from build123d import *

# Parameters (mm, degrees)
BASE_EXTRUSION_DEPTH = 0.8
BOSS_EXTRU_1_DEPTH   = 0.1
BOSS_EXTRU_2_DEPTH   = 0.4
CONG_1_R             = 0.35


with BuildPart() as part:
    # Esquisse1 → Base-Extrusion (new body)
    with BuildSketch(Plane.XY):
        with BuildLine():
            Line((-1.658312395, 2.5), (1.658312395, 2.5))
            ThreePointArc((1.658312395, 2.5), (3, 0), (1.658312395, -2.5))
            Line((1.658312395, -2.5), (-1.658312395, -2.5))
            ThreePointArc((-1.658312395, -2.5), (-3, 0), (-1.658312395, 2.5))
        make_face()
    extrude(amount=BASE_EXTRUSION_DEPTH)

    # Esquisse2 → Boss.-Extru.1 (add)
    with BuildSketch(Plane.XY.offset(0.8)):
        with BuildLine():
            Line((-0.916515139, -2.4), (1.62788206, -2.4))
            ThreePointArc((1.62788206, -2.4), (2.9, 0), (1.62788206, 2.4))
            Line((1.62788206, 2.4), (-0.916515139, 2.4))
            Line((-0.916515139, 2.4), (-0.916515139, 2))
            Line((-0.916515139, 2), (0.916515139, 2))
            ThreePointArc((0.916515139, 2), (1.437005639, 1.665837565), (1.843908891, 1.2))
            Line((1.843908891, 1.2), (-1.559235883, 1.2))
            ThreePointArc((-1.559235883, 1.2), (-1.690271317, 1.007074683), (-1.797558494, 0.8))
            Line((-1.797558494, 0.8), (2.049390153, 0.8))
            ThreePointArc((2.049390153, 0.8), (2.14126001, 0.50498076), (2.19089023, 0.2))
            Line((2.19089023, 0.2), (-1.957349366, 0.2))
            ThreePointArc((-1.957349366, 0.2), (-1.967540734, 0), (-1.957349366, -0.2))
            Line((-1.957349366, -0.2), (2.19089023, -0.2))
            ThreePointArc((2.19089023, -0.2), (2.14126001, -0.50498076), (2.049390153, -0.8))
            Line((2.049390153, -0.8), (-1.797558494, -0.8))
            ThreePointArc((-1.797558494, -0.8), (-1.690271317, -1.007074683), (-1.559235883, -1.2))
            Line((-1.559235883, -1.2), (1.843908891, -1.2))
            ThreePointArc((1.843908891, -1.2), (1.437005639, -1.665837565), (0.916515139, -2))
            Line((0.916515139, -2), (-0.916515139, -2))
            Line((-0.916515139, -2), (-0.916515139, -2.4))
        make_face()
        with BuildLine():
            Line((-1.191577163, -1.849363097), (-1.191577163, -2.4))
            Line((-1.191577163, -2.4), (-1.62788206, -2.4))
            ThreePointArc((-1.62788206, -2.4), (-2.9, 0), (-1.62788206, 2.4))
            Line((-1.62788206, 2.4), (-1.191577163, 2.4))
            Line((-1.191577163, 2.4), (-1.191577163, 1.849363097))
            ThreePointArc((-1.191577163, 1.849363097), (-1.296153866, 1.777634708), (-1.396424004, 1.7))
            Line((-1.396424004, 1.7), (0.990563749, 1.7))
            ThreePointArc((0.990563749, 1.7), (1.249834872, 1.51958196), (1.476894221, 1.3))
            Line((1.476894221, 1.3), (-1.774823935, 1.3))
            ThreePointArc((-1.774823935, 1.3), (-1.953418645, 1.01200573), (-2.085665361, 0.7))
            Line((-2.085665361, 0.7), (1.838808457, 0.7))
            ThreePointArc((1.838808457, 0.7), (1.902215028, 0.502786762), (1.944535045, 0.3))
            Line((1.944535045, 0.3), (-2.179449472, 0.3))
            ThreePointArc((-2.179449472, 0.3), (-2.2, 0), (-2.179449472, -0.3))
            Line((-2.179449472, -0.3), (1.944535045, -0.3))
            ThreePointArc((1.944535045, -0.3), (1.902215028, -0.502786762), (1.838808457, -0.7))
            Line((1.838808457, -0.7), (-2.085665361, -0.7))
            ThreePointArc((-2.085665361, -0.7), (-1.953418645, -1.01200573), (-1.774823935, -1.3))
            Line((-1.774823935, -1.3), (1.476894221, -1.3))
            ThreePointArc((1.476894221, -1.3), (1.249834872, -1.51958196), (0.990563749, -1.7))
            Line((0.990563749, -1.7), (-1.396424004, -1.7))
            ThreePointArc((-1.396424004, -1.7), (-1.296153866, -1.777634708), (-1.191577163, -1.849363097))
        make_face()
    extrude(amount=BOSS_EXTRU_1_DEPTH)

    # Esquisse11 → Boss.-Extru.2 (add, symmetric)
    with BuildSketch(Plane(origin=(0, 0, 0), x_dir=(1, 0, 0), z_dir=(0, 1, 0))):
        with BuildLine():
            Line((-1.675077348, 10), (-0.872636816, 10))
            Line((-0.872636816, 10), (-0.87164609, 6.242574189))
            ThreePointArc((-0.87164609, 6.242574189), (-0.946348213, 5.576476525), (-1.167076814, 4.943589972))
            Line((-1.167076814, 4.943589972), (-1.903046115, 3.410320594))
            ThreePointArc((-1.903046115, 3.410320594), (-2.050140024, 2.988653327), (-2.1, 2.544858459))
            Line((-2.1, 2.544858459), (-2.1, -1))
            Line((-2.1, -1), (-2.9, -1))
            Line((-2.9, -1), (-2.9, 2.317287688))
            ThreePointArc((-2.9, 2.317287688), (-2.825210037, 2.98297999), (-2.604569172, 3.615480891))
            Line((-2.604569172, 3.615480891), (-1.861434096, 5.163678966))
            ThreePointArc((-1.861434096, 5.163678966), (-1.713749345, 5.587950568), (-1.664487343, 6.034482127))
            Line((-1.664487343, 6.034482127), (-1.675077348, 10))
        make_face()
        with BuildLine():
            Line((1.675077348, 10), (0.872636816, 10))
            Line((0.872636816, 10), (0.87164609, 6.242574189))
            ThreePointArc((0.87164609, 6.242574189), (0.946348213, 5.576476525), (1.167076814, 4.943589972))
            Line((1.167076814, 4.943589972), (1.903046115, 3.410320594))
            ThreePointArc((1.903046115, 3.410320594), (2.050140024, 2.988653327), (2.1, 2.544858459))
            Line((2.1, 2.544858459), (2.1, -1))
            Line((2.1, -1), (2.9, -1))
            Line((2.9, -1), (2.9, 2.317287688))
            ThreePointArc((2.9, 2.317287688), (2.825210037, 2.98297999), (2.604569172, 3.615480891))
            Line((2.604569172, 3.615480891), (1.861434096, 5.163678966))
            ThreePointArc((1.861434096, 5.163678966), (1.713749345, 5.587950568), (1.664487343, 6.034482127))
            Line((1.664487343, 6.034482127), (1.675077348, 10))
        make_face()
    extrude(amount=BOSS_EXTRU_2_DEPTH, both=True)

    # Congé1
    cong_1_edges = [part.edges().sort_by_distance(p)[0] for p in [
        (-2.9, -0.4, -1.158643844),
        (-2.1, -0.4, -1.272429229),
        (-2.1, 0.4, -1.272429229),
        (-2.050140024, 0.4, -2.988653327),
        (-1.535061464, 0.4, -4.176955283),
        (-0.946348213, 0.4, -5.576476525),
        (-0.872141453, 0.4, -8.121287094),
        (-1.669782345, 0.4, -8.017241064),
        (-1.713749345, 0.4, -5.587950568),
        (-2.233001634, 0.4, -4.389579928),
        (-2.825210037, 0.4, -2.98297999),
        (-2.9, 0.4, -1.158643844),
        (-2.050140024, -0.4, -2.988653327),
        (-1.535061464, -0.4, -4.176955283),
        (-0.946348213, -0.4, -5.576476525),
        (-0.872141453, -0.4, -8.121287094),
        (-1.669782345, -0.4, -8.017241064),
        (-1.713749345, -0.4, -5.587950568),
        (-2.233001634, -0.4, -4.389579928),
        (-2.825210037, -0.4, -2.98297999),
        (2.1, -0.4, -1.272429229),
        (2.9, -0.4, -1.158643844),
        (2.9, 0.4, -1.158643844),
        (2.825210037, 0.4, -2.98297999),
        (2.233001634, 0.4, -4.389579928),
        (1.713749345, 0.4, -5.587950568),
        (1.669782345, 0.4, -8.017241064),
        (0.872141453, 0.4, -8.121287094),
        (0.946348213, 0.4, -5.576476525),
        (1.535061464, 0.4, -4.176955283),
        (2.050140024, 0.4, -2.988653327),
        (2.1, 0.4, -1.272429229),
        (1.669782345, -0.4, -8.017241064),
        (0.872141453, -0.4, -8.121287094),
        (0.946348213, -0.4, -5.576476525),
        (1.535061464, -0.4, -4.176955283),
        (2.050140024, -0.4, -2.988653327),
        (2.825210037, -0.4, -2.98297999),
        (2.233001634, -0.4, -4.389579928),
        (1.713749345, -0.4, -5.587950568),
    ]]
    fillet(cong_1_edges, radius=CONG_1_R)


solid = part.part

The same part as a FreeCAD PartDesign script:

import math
import FreeCAD as App
import Part
import Sketcher
from FreeCAD import Vector


def edges_at(feature, points):
    """Names of the edges that pass closest to the given points."""
    edges = feature.Shape.Edges
    near = lambda p: min(range(len(edges)), key=lambda i: edges[i].distToShape(Part.Vertex(*p))[0])
    return sorted({f"Edge{near(p) + 1}" for p in points})

doc = App.newDocument("Part")
body = doc.addObject("PartDesign::Body", "Body")

# Sketch on XY plane
sketch1 = body.newObject("Sketcher::SketchObject", "Sketch")
sketch1.AttachmentSupport = (doc.getObject("XY_Plane"), [""])
sketch1.MapMode = "FlatFace"
sketch1.addGeometry([
    Part.LineSegment(Vector(1.7, 2.5, 0), Vector(-1.7, 2.5, 0)),
    Part.ArcOfCircle(Part.Circle(Vector(0, 0, 0), Vector(0, 0, 1), 3), math.radians(124), math.radians(236)),
    Part.LineSegment(Vector(-1.7, -2.5, 0), Vector(1.7, -2.5, 0)),
    Part.ArcOfCircle(Part.Circle(Vector(0, 0, 0), Vector(0, 0, 1), 3), math.radians(-56), math.radians(56)),
], False)
sketch1.addConstraint([
    Sketcher.Constraint("Coincident", 0, 2, 1, 1),
    Sketcher.Constraint("Coincident", 1, 2, 2, 1),
    Sketcher.Constraint("Coincident", 2, 2, 3, 1),
    Sketcher.Constraint("Coincident", 3, 2, 0, 1),
    Sketcher.Constraint("Horizontal", 0),
    Sketcher.Constraint("Horizontal", 2),
    Sketcher.Constraint("Coincident", 1, 3, -1, 1),
    Sketcher.Constraint("Coincident", 3, 3, -1, 1),
    Sketcher.Constraint("Equal", 1, 3),
    Sketcher.Constraint("Vertical", 0, 2, 1, 2),
    Sketcher.Constraint("Radius", 1, 3.0),
    Sketcher.Constraint("DistanceY", 1, 2, 0, 2, 5.0),
])
pad1 = body.newObject("PartDesign::Pad", "Pad")
pad1.Profile = sketch1
pad1.Length = 0.8

# Sketch on XY plane
sketch2 = body.newObject("Sketcher::SketchObject", "Sketch001")
sketch2.AttachmentSupport = (doc.getObject("XY_Plane"), [""])
sketch2.MapMode = "FlatFace"
sketch2.AttachmentOffset = App.Placement(Vector(0, 0, 0.8), App.Rotation())
sketch2.addGeometry([
    Part.LineSegment(Vector(-0.92, -2.4, 0), Vector(1.63, -2.4, 0)),  # 0
    Part.ArcOfCircle(Part.Circle(Vector(0, 0, 0), Vector(0, 0, 1), 2.9), math.radians(-56), math.radians(56)),  # 1
    Part.LineSegment(Vector(1.63, 2.4, 0), Vector(-0.92, 2.4, 0)),  # 2
    Part.LineSegment(Vector(-0.92, 2.4, 0), Vector(-0.92, 2, 0)),  # 3
    Part.LineSegment(Vector(-0.92, 2, 0), Vector(0.92, 2, 0)),  # 4
    Part.ArcOfCircle(Part.Circle(Vector(0, 0, 0), Vector(0, 0, 1), 2.2), math.radians(33), math.radians(65)),  # 5
    Part.LineSegment(Vector(1.84, 1.2, 0), Vector(-1.56, 1.2, 0)),  # 6
    Part.ArcOfCircle(Part.Circle(Vector(0, 0, 0), Vector(0, 0, 1), 1.97), math.radians(142.42), math.radians(156.01)),  # 7
    Part.LineSegment(Vector(-1.8, 0.8, 0), Vector(2.05, 0.8, 0)),  # 8
    Part.ArcOfCircle(Part.Circle(Vector(0, 0, 0), Vector(0, 0, 1), 2.2), math.radians(5.22), math.radians(21.32)),  # 9
    Part.LineSegment(Vector(2.19, 0.2, 0), Vector(-1.96, 0.2, 0)),  # 10
    Part.ArcOfCircle(Part.Circle(Vector(0, 0, 0), Vector(0, 0, 1), 1.97), math.radians(174.17), math.radians(185.83)),  # 11
    Part.LineSegment(Vector(-1.96, -0.2, 0), Vector(2.19, -0.2, 0)),  # 12
    Part.ArcOfCircle(Part.Circle(Vector(0, 0, 0), Vector(0, 0, 1), 2.2), math.radians(-21.32), math.radians(-5.22)),  # 13
    Part.LineSegment(Vector(2.05, -0.8, 0), Vector(-1.8, -0.8, 0)),  # 14
    Part.ArcOfCircle(Part.Circle(Vector(0, 0, 0), Vector(0, 0, 1), 1.97), math.radians(-156.01), math.radians(-142.42)),  # 15
    Part.LineSegment(Vector(-1.56, -1.2, 0), Vector(1.84, -1.2, 0)),  # 16
    Part.ArcOfCircle(Part.Circle(Vector(0, 0, 0), Vector(0, 0, 1), 2.2), math.radians(-65), math.radians(-33)),  # 17
    Part.LineSegment(Vector(0.92, -2, 0), Vector(-0.92, -2, 0)),  # 18
    Part.LineSegment(Vector(-0.92, -2, 0), Vector(-0.92, -2.4, 0)),  # 19
    Part.LineSegment(Vector(-1.19, -2.4, 0), Vector(-1.19, -1.85, 0)),  # 20
    Part.ArcOfCircle(Part.Circle(Vector(0, 0, 0), Vector(0, 0, 1), 2.2), math.radians(-129.4), math.radians(-122.79)),  # 21
    Part.LineSegment(Vector(-1.4, -1.7, 0), Vector(0.99, -1.7, 0)),  # 22
    Part.ArcOfCircle(Part.Circle(Vector(0, 0, 0), Vector(0, 0, 1), 1.97), math.radians(-59.77), math.radians(-41.36)),  # 23
    Part.LineSegment(Vector(1.48, -1.3, 0), Vector(-1.77, -1.3, 0)),  # 24
    Part.ArcOfCircle(Part.Circle(Vector(0, 0, 0), Vector(0, 0, 1), 2.2), math.radians(-161.45), math.radians(-143.78)),  # 25
    Part.LineSegment(Vector(-2.09, -0.7, 0), Vector(1.84, -0.7, 0)),  # 26
    Part.ArcOfCircle(Part.Circle(Vector(0, 0, 0), Vector(0, 0, 1), 1.97), math.radians(-20.84), math.radians(-8.77)),  # 27
    Part.LineSegment(Vector(1.94, -0.3, 0), Vector(-2.18, -0.3, 0)),  # 28
    Part.ArcOfCircle(Part.Circle(Vector(0, 0, 0), Vector(0, 0, 1), 2.2), math.radians(172.16), math.radians(187.84)),  # 29
    Part.LineSegment(Vector(-2.18, 0.3, 0), Vector(1.94, 0.3, 0)),  # 30
    Part.ArcOfCircle(Part.Circle(Vector(0, 0, 0), Vector(0, 0, 1), 1.97), math.radians(8.77), math.radians(20.84)),  # 31
    Part.LineSegment(Vector(1.84, 0.7, 0), Vector(-2.09, 0.7, 0)),  # 32
    Part.ArcOfCircle(Part.Circle(Vector(0, 0, 0), Vector(0, 0, 1), 2.2), math.radians(143.78), math.radians(161.45)),  # 33
    Part.LineSegment(Vector(-1.77, 1.3, 0), Vector(1.48, 1.3, 0)),  # 34
    Part.ArcOfCircle(Part.Circle(Vector(0, 0, 0), Vector(0, 0, 1), 1.97), math.radians(41.36), math.radians(59.77)),  # 35
    Part.LineSegment(Vector(0.99, 1.7, 0), Vector(-1.4, 1.7, 0)),  # 36
    Part.ArcOfCircle(Part.Circle(Vector(0, 0, 0), Vector(0, 0, 1), 2.2), math.radians(122.79), math.radians(129.4)),  # 37
    Part.LineSegment(Vector(-1.19, 1.85, 0), Vector(-1.19, 2.4, 0)),  # 38
    Part.LineSegment(Vector(-1.19, 2.4, 0), Vector(-1.63, 2.4, 0)),  # 39
    Part.ArcOfCircle(Part.Circle(Vector(0, 0, 0), Vector(0, 0, 1), 2.9), math.radians(124), math.radians(236)),  # 40
    Part.LineSegment(Vector(-1.63, -2.4, 0), Vector(-1.19, -2.4, 0)),  # 41
], False)
sketch2.addConstraint([
    Sketcher.Constraint("Coincident", 0, 2, 1, 1),
    Sketcher.Constraint("Coincident", 1, 2, 2, 1),
    Sketcher.Constraint("Coincident", 2, 2, 3, 1),
    Sketcher.Constraint("Coincident", 3, 2, 4, 1),
    Sketcher.Constraint("Coincident", 4, 2, 5, 2),
    Sketcher.Constraint("Coincident", 5, 1, 6, 1),
    Sketcher.Constraint("Coincident", 6, 2, 7, 1),
    Sketcher.Constraint("Coincident", 7, 2, 8, 1),
    Sketcher.Constraint("Coincident", 8, 2, 9, 2),
    Sketcher.Constraint("Coincident", 9, 1, 10, 1),
    Sketcher.Constraint("Coincident", 10, 2, 11, 1),
    Sketcher.Constraint("Coincident", 11, 2, 12, 1),
    Sketcher.Constraint("Coincident", 12, 2, 13, 2),
    Sketcher.Constraint("Coincident", 13, 1, 14, 1),
    Sketcher.Constraint("Coincident", 14, 2, 15, 1),
    Sketcher.Constraint("Coincident", 15, 2, 16, 1),
    Sketcher.Constraint("Coincident", 16, 2, 17, 2),
    Sketcher.Constraint("Coincident", 17, 1, 18, 1),
    Sketcher.Constraint("Coincident", 18, 2, 19, 1),
    Sketcher.Constraint("Coincident", 19, 2, 0, 1),
    Sketcher.Constraint("Coincident", 20, 2, 21, 2),
    Sketcher.Constraint("Coincident", 21, 1, 22, 1),
    Sketcher.Constraint("Coincident", 22, 2, 23, 1),
    Sketcher.Constraint("Coincident", 23, 2, 24, 1),
    Sketcher.Constraint("Coincident", 24, 2, 25, 2),
    Sketcher.Constraint("Coincident", 25, 1, 26, 1),
    Sketcher.Constraint("Coincident", 26, 2, 27, 1),
    Sketcher.Constraint("Coincident", 27, 2, 28, 1),
    Sketcher.Constraint("Coincident", 28, 2, 29, 2),
    Sketcher.Constraint("Coincident", 29, 1, 30, 1),
    Sketcher.Constraint("Coincident", 30, 2, 31, 1),
    Sketcher.Constraint("Coincident", 31, 2, 32, 1),
    Sketcher.Constraint("Coincident", 32, 2, 33, 2),
    Sketcher.Constraint("Coincident", 33, 1, 34, 1),
    Sketcher.Constraint("Coincident", 34, 2, 35, 1),
    Sketcher.Constraint("Coincident", 35, 2, 36, 1),
    Sketcher.Constraint("Coincident", 36, 2, 37, 2),
    Sketcher.Constraint("Coincident", 37, 1, 38, 1),
    Sketcher.Constraint("Coincident", 38, 2, 39, 1),
    Sketcher.Constraint("Coincident", 39, 2, 40, 1),
    Sketcher.Constraint("Coincident", 40, 2, 41, 1),
    Sketcher.Constraint("Coincident", 41, 2, 20, 1),
    Sketcher.Constraint("Horizontal", 0),
    Sketcher.Constraint("Horizontal", 2),
    Sketcher.Constraint("Vertical", 3),
    Sketcher.Constraint("Horizontal", 4),
    Sketcher.Constraint("Horizontal", 6),
    Sketcher.Constraint("Horizontal", 8),
    Sketcher.Constraint("Horizontal", 10),
    Sketcher.Constraint("Horizontal", 12),
    Sketcher.Constraint("Horizontal", 14),
    Sketcher.Constraint("Horizontal", 16),
    Sketcher.Constraint("Horizontal", 18),
    Sketcher.Constraint("Vertical", 19),
    Sketcher.Constraint("Vertical", 20),
    Sketcher.Constraint("Horizontal", 22),
    Sketcher.Constraint("Horizontal", 24),
    Sketcher.Constraint("Horizontal", 26),
    Sketcher.Constraint("Horizontal", 28),
    Sketcher.Constraint("Horizontal", 30),
    Sketcher.Constraint("Horizontal", 32),
    Sketcher.Constraint("Horizontal", 34),
    Sketcher.Constraint("Horizontal", 36),
    Sketcher.Constraint("Vertical", 38),
    Sketcher.Constraint("Horizontal", 39),
    Sketcher.Constraint("Horizontal", 41),
    Sketcher.Constraint("Coincident", 1, 3, -1, 1),
    Sketcher.Constraint("Coincident", 5, 3, -1, 1),
    Sketcher.Constraint("Coincident", 7, 3, -1, 1),
    Sketcher.Constraint("Coincident", 9, 3, -1, 1),
    Sketcher.Constraint("Coincident", 11, 3, -1, 1),
    Sketcher.Constraint("Coincident", 13, 3, -1, 1),
    Sketcher.Constraint("Coincident", 15, 3, -1, 1),
    Sketcher.Constraint("Coincident", 17, 3, -1, 1),
    Sketcher.Constraint("Coincident", 21, 3, -1, 1),
    Sketcher.Constraint("Coincident", 23, 3, -1, 1),
    Sketcher.Constraint("Coincident", 25, 3, -1, 1),
    Sketcher.Constraint("Coincident", 27, 3, -1, 1),
    Sketcher.Constraint("Coincident", 29, 3, -1, 1),
    Sketcher.Constraint("Coincident", 31, 3, -1, 1),
    Sketcher.Constraint("Coincident", 33, 3, -1, 1),
    Sketcher.Constraint("Coincident", 35, 3, -1, 1),
    Sketcher.Constraint("Coincident", 37, 3, -1, 1),
    Sketcher.Constraint("Coincident", 40, 3, -1, 1),
    Sketcher.Constraint("Equal", 5, 9),
    Sketcher.Constraint("Equal", 7, 11),
    Sketcher.Constraint("Equal", 9, 13),
    Sketcher.Constraint("Equal", 11, 15),
    Sketcher.Constraint("Equal", 13, 17),
    Sketcher.Constraint("Equal", 17, 21),
    Sketcher.Constraint("Equal", 15, 23),
    Sketcher.Constraint("Equal", 21, 25),
    Sketcher.Constraint("Equal", 23, 27),
    Sketcher.Constraint("Equal", 25, 29),
    Sketcher.Constraint("Equal", 27, 31),
    Sketcher.Constraint("Equal", 29, 33),
    Sketcher.Constraint("Equal", 31, 35),
    Sketcher.Constraint("Equal", 33, 37),
    Sketcher.Constraint("Equal", 1, 40),
    Sketcher.Constraint("Symmetric", 3, 2, 17, 1, -1, 1),
    Sketcher.Constraint("Symmetric", 2, 2, 19, 2, -1),
    Sketcher.Constraint("Symmetric", 38, 2, 41, 2, -1),
    Sketcher.Constraint("Horizontal", 2, 2, 38, 2),
    Sketcher.Constraint("Vertical", 10, 2, 11, 2),
    Sketcher.Constraint("Vertical", 8, 2, 13, 1),
    Sketcher.Constraint("Vertical", 6, 2, 15, 2),
    Sketcher.Constraint("Vertical", 28, 2, 29, 1),
    Sketcher.Constraint("Vertical", 26, 2, 31, 2),
    Sketcher.Constraint("Vertical", 24, 2, 33, 1),
    Sketcher.Constraint("Vertical", 22, 2, 35, 2),
    Sketcher.Constraint("Radius", 1, 2.9),
    Sketcher.Constraint("Radius", 5, 2.2),
    Sketcher.Constraint("DistanceY", 3, 2, 3, 1, 0.4),
    Sketcher.Constraint("DistanceY", -1, 1, 3, 2, 2.0),
    Sketcher.Constraint("DistanceY", 9, 1, 5, 1, 1.0),
    Sketcher.Constraint("DistanceY", 11, 2, 7, 2, 1.0),
    Sketcher.Constraint("DistanceY", 24, 2, 28, 2, 1.0),
    Sketcher.Constraint("DistanceY", 25, 1, 29, 1, 1.0),
    Sketcher.Constraint("DistanceY", 31, 2, 35, 2, 1.0),
    Sketcher.Constraint("DistanceY", -1, 1, 5, 1, 1.2),
    Sketcher.Constraint("DistanceY", 21, 1, -1, 1, 1.7),
    Sketcher.Constraint("Radius", 7, 1.967541),
    Sketcher.Constraint("DistanceX", 39, 2, 39, 1, 0.436305),
])
pad2 = body.newObject("PartDesign::Pad", "Pad001")
pad2.Profile = sketch2
pad2.Length = 0.1

# Sketch on XZ plane
sketch3 = body.newObject("Sketcher::SketchObject", "Sketch002")
sketch3.AttachmentSupport = (doc.getObject("XZ_Plane"), [""])
sketch3.MapMode = "FlatFace"
sketch3.addGeometry([
    Part.LineSegment(Vector(-0.9, -10, 0), Vector(-1.7, -10, 0)),  # 0
    Part.LineSegment(Vector(-1.7, -10, 0), Vector(-1.7, -6, 0)),  # 1
    Part.ArcOfCircle(Part.Circle(Vector(-3.7, -6, 0), Vector(0, 0, 1), 2), math.radians(0), math.radians(26)),  # 2
    Part.LineSegment(Vector(-1.9, -5.2, 0), Vector(-2.6, -3.6, 0)),  # 3
    Part.ArcOfCircle(Part.Circle(Vector(0.1, -2.3, 0), Vector(0, 0, 1), 3), math.radians(180), math.radians(206)),  # 4
    Part.LineSegment(Vector(-2.9, -2.3, 0), Vector(-2.9, 1, 0)),  # 5
    Part.LineSegment(Vector(-2.9, 1, 0), Vector(-2.1, 1, 0)),  # 6
    Part.LineSegment(Vector(-2.1, 1, 0), Vector(-2.1, -2.5, 0)),  # 7
    Part.ArcOfCircle(Part.Circle(Vector(-0.1, -2.5, 0), Vector(0, 0, 1), 2), math.radians(-180), math.radians(-154)),  # 8
    Part.LineSegment(Vector(-1.9, -3.4, 0), Vector(-1.2, -4.9, 0)),  # 9
    Part.ArcOfCircle(Part.Circle(Vector(-3.9, -6.2, 0), Vector(0, 0, 1), 3), math.radians(0), math.radians(26)),  # 10
    Part.LineSegment(Vector(-0.9, -6.2, 0), Vector(-0.9, -10, 0)),  # 11
    Part.LineSegment(Vector(1.7, -10, 0), Vector(0.9, -10, 0)),  # 12
    Part.LineSegment(Vector(0.9, -10, 0), Vector(0.9, -6.2, 0)),  # 13
    Part.ArcOfCircle(Part.Circle(Vector(3.9, -6.2, 0), Vector(0, 0, 1), 3), math.radians(154), math.radians(180)),  # 14
    Part.LineSegment(Vector(1.2, -4.9, 0), Vector(1.9, -3.4, 0)),  # 15
    Part.ArcOfCircle(Part.Circle(Vector(0.1, -2.5, 0), Vector(0, 0, 1), 2), math.radians(-26), math.radians(0)),  # 16
    Part.LineSegment(Vector(2.1, -2.5, 0), Vector(2.1, 1, 0)),  # 17
    Part.LineSegment(Vector(2.1, 1, 0), Vector(2.9, 1, 0)),  # 18
    Part.LineSegment(Vector(2.9, 1, 0), Vector(2.9, -2.3, 0)),  # 19
    Part.ArcOfCircle(Part.Circle(Vector(-0.1, -2.3, 0), Vector(0, 0, 1), 3), math.radians(-26), math.radians(0)),  # 20
    Part.LineSegment(Vector(2.6, -3.6, 0), Vector(1.9, -5.2, 0)),  # 21
    Part.ArcOfCircle(Part.Circle(Vector(3.7, -6, 0), Vector(0, 0, 1), 2), math.radians(154), math.radians(180)),  # 22
    Part.LineSegment(Vector(1.7, -6, 0), Vector(1.7, -10, 0)),  # 23
], False)
sketch3.addConstraint([
    Sketcher.Constraint("Coincident", 0, 2, 1, 1),
    Sketcher.Constraint("Tangent", 1, 2, 2, 1),
    Sketcher.Constraint("Tangent", 2, 2, 3, 1),
    Sketcher.Constraint("Tangent", 3, 2, 4, 2),
    Sketcher.Constraint("Tangent", 4, 1, 5, 1),
    Sketcher.Constraint("Coincident", 5, 2, 6, 1),
    Sketcher.Constraint("Coincident", 6, 2, 7, 1),
    Sketcher.Constraint("Tangent", 7, 2, 8, 1),
    Sketcher.Constraint("Tangent", 8, 2, 9, 1),
    Sketcher.Constraint("Tangent", 9, 2, 10, 2),
    Sketcher.Constraint("Tangent", 10, 1, 11, 1),
    Sketcher.Constraint("Coincident", 11, 2, 0, 1),
    Sketcher.Constraint("Coincident", 12, 2, 13, 1),
    Sketcher.Constraint("Tangent", 13, 2, 14, 2),
    Sketcher.Constraint("Tangent", 14, 1, 15, 1),
    Sketcher.Constraint("Tangent", 15, 2, 16, 1),
    Sketcher.Constraint("Tangent", 16, 2, 17, 1),
    Sketcher.Constraint("Coincident", 17, 2, 18, 1),
    Sketcher.Constraint("Coincident", 18, 2, 19, 1),
    Sketcher.Constraint("Tangent", 19, 2, 20, 2),
    Sketcher.Constraint("Tangent", 20, 1, 21, 1),
    Sketcher.Constraint("Tangent", 21, 2, 22, 1),
    Sketcher.Constraint("Tangent", 22, 2, 23, 1),
    Sketcher.Constraint("Coincident", 23, 2, 12, 1),
    Sketcher.Constraint("Horizontal", 0),
    Sketcher.Constraint("Vertical", 5),
    Sketcher.Constraint("Horizontal", 6),
    Sketcher.Constraint("Vertical", 7),
    Sketcher.Constraint("Horizontal", 12),
    Sketcher.Constraint("Vertical", 17),
    Sketcher.Constraint("Horizontal", 18),
    Sketcher.Constraint("Vertical", 19),
    Sketcher.Constraint("Equal", 2, 8),
    Sketcher.Constraint("Equal", 4, 10),
    Sketcher.Constraint("Equal", 10, 14),
    Sketcher.Constraint("Equal", 8, 16),
    Sketcher.Constraint("Equal", 14, 20),
    Sketcher.Constraint("Equal", 16, 22),
    Sketcher.Constraint("Symmetric", 10, 3, 14, 3, -2),
    Sketcher.Constraint("Symmetric", 8, 3, 16, 3, -2),
    Sketcher.Constraint("Symmetric", 4, 3, 20, 3, -2),
    Sketcher.Constraint("Symmetric", 2, 3, 22, 3, -2),
    Sketcher.Constraint("Symmetric", 11, 2, 12, 2, -2),
    Sketcher.Constraint("Parallel", 3, 9),
    Sketcher.Constraint("Horizontal", 6, 2, 17, 2),
    Sketcher.Constraint("Horizontal", 1, 2, 22, 2),
    Sketcher.Constraint("Vertical", 4, 3, 16, 3),
    Sketcher.Constraint("Radius", 2, 2.0),
    Sketcher.Constraint("Radius", 4, 3.0),
    Sketcher.Constraint("DistanceX", 6, 1, 6, 2, 0.8),
    Sketcher.Constraint("DistanceY", 0, 2, -1, 1, 10.0),
    Sketcher.Constraint("DistanceY", -1, 1, 5, 2, 1.0),
    Sketcher.Constraint("DistanceY", 1, 2, 3, 2, 2.419001),
    Sketcher.Constraint("DistanceX", 0, 2, 0, 1, 0.802441),
    Sketcher.Constraint("DistanceY", 7, 2, 7, 1, 3.544858),
    Sketcher.Constraint("DistanceY", 10, 3, 1, 2, 0.207301),
    Sketcher.Constraint("DistanceY", 2, 2, 3, 2, 1.548198),
    Sketcher.Constraint("DistanceY", 5, 1, 5, 2, 3.317288),
    Sketcher.Constraint("DistanceX", 2, 3, -1, 1, 3.66448),
])
pad3 = body.newObject("PartDesign::Pad", "Pad002")
pad3.Profile = sketch3
pad3.Length = 0.8
pad3.Midplane = True
doc.recompute()

fillet = body.newObject("PartDesign::Fillet", "Fillet")
fillet.Base = (pad3, edges_at(pad3, [
    (-2.9, -0.4, -1.159),
    (-2.1, -0.4, -1.272),
    (-2.1, 0.4, -1.272),
    (-2.05, 0.4, -2.989),
    (-1.535, 0.4, -4.177),
    (-0.946, 0.4, -5.576),
    (-0.872, 0.4, -8.121),
    (-1.67, 0.4, -8.017),
    (-1.714, 0.4, -5.588),
    (-2.233, 0.4, -4.39),
    (-2.825, 0.4, -2.983),
    (-2.9, 0.4, -1.159),
    (-2.05, -0.4, -2.989),
    (-1.535, -0.4, -4.177),
    (-0.946, -0.4, -5.576),
    (-0.872, -0.4, -8.121),
    (-1.67, -0.4, -8.017),
    (-1.714, -0.4, -5.588),
    (-2.233, -0.4, -4.39),
    (-2.825, -0.4, -2.983),
    (2.1, -0.4, -1.272),
    (2.9, -0.4, -1.159),
    (2.9, 0.4, -1.159),
    (2.825, 0.4, -2.983),
    (2.233, 0.4, -4.39),
    (1.714, 0.4, -5.588),
    (1.67, 0.4, -8.017),
    (0.872, 0.4, -8.121),
    (0.946, 0.4, -5.576),
    (1.535, 0.4, -4.177),
    (2.05, 0.4, -2.989),
    (2.1, 0.4, -1.272),
    (1.67, -0.4, -8.017),
    (0.872, -0.4, -8.121),
    (0.946, -0.4, -5.576),
    (1.535, -0.4, -4.177),
    (2.05, -0.4, -2.989),
    (2.825, -0.4, -2.983),
    (2.233, -0.4, -4.39),
    (1.714, -0.4, -5.588),
]))
fillet.Radius = 0.35

doc.recompute()
